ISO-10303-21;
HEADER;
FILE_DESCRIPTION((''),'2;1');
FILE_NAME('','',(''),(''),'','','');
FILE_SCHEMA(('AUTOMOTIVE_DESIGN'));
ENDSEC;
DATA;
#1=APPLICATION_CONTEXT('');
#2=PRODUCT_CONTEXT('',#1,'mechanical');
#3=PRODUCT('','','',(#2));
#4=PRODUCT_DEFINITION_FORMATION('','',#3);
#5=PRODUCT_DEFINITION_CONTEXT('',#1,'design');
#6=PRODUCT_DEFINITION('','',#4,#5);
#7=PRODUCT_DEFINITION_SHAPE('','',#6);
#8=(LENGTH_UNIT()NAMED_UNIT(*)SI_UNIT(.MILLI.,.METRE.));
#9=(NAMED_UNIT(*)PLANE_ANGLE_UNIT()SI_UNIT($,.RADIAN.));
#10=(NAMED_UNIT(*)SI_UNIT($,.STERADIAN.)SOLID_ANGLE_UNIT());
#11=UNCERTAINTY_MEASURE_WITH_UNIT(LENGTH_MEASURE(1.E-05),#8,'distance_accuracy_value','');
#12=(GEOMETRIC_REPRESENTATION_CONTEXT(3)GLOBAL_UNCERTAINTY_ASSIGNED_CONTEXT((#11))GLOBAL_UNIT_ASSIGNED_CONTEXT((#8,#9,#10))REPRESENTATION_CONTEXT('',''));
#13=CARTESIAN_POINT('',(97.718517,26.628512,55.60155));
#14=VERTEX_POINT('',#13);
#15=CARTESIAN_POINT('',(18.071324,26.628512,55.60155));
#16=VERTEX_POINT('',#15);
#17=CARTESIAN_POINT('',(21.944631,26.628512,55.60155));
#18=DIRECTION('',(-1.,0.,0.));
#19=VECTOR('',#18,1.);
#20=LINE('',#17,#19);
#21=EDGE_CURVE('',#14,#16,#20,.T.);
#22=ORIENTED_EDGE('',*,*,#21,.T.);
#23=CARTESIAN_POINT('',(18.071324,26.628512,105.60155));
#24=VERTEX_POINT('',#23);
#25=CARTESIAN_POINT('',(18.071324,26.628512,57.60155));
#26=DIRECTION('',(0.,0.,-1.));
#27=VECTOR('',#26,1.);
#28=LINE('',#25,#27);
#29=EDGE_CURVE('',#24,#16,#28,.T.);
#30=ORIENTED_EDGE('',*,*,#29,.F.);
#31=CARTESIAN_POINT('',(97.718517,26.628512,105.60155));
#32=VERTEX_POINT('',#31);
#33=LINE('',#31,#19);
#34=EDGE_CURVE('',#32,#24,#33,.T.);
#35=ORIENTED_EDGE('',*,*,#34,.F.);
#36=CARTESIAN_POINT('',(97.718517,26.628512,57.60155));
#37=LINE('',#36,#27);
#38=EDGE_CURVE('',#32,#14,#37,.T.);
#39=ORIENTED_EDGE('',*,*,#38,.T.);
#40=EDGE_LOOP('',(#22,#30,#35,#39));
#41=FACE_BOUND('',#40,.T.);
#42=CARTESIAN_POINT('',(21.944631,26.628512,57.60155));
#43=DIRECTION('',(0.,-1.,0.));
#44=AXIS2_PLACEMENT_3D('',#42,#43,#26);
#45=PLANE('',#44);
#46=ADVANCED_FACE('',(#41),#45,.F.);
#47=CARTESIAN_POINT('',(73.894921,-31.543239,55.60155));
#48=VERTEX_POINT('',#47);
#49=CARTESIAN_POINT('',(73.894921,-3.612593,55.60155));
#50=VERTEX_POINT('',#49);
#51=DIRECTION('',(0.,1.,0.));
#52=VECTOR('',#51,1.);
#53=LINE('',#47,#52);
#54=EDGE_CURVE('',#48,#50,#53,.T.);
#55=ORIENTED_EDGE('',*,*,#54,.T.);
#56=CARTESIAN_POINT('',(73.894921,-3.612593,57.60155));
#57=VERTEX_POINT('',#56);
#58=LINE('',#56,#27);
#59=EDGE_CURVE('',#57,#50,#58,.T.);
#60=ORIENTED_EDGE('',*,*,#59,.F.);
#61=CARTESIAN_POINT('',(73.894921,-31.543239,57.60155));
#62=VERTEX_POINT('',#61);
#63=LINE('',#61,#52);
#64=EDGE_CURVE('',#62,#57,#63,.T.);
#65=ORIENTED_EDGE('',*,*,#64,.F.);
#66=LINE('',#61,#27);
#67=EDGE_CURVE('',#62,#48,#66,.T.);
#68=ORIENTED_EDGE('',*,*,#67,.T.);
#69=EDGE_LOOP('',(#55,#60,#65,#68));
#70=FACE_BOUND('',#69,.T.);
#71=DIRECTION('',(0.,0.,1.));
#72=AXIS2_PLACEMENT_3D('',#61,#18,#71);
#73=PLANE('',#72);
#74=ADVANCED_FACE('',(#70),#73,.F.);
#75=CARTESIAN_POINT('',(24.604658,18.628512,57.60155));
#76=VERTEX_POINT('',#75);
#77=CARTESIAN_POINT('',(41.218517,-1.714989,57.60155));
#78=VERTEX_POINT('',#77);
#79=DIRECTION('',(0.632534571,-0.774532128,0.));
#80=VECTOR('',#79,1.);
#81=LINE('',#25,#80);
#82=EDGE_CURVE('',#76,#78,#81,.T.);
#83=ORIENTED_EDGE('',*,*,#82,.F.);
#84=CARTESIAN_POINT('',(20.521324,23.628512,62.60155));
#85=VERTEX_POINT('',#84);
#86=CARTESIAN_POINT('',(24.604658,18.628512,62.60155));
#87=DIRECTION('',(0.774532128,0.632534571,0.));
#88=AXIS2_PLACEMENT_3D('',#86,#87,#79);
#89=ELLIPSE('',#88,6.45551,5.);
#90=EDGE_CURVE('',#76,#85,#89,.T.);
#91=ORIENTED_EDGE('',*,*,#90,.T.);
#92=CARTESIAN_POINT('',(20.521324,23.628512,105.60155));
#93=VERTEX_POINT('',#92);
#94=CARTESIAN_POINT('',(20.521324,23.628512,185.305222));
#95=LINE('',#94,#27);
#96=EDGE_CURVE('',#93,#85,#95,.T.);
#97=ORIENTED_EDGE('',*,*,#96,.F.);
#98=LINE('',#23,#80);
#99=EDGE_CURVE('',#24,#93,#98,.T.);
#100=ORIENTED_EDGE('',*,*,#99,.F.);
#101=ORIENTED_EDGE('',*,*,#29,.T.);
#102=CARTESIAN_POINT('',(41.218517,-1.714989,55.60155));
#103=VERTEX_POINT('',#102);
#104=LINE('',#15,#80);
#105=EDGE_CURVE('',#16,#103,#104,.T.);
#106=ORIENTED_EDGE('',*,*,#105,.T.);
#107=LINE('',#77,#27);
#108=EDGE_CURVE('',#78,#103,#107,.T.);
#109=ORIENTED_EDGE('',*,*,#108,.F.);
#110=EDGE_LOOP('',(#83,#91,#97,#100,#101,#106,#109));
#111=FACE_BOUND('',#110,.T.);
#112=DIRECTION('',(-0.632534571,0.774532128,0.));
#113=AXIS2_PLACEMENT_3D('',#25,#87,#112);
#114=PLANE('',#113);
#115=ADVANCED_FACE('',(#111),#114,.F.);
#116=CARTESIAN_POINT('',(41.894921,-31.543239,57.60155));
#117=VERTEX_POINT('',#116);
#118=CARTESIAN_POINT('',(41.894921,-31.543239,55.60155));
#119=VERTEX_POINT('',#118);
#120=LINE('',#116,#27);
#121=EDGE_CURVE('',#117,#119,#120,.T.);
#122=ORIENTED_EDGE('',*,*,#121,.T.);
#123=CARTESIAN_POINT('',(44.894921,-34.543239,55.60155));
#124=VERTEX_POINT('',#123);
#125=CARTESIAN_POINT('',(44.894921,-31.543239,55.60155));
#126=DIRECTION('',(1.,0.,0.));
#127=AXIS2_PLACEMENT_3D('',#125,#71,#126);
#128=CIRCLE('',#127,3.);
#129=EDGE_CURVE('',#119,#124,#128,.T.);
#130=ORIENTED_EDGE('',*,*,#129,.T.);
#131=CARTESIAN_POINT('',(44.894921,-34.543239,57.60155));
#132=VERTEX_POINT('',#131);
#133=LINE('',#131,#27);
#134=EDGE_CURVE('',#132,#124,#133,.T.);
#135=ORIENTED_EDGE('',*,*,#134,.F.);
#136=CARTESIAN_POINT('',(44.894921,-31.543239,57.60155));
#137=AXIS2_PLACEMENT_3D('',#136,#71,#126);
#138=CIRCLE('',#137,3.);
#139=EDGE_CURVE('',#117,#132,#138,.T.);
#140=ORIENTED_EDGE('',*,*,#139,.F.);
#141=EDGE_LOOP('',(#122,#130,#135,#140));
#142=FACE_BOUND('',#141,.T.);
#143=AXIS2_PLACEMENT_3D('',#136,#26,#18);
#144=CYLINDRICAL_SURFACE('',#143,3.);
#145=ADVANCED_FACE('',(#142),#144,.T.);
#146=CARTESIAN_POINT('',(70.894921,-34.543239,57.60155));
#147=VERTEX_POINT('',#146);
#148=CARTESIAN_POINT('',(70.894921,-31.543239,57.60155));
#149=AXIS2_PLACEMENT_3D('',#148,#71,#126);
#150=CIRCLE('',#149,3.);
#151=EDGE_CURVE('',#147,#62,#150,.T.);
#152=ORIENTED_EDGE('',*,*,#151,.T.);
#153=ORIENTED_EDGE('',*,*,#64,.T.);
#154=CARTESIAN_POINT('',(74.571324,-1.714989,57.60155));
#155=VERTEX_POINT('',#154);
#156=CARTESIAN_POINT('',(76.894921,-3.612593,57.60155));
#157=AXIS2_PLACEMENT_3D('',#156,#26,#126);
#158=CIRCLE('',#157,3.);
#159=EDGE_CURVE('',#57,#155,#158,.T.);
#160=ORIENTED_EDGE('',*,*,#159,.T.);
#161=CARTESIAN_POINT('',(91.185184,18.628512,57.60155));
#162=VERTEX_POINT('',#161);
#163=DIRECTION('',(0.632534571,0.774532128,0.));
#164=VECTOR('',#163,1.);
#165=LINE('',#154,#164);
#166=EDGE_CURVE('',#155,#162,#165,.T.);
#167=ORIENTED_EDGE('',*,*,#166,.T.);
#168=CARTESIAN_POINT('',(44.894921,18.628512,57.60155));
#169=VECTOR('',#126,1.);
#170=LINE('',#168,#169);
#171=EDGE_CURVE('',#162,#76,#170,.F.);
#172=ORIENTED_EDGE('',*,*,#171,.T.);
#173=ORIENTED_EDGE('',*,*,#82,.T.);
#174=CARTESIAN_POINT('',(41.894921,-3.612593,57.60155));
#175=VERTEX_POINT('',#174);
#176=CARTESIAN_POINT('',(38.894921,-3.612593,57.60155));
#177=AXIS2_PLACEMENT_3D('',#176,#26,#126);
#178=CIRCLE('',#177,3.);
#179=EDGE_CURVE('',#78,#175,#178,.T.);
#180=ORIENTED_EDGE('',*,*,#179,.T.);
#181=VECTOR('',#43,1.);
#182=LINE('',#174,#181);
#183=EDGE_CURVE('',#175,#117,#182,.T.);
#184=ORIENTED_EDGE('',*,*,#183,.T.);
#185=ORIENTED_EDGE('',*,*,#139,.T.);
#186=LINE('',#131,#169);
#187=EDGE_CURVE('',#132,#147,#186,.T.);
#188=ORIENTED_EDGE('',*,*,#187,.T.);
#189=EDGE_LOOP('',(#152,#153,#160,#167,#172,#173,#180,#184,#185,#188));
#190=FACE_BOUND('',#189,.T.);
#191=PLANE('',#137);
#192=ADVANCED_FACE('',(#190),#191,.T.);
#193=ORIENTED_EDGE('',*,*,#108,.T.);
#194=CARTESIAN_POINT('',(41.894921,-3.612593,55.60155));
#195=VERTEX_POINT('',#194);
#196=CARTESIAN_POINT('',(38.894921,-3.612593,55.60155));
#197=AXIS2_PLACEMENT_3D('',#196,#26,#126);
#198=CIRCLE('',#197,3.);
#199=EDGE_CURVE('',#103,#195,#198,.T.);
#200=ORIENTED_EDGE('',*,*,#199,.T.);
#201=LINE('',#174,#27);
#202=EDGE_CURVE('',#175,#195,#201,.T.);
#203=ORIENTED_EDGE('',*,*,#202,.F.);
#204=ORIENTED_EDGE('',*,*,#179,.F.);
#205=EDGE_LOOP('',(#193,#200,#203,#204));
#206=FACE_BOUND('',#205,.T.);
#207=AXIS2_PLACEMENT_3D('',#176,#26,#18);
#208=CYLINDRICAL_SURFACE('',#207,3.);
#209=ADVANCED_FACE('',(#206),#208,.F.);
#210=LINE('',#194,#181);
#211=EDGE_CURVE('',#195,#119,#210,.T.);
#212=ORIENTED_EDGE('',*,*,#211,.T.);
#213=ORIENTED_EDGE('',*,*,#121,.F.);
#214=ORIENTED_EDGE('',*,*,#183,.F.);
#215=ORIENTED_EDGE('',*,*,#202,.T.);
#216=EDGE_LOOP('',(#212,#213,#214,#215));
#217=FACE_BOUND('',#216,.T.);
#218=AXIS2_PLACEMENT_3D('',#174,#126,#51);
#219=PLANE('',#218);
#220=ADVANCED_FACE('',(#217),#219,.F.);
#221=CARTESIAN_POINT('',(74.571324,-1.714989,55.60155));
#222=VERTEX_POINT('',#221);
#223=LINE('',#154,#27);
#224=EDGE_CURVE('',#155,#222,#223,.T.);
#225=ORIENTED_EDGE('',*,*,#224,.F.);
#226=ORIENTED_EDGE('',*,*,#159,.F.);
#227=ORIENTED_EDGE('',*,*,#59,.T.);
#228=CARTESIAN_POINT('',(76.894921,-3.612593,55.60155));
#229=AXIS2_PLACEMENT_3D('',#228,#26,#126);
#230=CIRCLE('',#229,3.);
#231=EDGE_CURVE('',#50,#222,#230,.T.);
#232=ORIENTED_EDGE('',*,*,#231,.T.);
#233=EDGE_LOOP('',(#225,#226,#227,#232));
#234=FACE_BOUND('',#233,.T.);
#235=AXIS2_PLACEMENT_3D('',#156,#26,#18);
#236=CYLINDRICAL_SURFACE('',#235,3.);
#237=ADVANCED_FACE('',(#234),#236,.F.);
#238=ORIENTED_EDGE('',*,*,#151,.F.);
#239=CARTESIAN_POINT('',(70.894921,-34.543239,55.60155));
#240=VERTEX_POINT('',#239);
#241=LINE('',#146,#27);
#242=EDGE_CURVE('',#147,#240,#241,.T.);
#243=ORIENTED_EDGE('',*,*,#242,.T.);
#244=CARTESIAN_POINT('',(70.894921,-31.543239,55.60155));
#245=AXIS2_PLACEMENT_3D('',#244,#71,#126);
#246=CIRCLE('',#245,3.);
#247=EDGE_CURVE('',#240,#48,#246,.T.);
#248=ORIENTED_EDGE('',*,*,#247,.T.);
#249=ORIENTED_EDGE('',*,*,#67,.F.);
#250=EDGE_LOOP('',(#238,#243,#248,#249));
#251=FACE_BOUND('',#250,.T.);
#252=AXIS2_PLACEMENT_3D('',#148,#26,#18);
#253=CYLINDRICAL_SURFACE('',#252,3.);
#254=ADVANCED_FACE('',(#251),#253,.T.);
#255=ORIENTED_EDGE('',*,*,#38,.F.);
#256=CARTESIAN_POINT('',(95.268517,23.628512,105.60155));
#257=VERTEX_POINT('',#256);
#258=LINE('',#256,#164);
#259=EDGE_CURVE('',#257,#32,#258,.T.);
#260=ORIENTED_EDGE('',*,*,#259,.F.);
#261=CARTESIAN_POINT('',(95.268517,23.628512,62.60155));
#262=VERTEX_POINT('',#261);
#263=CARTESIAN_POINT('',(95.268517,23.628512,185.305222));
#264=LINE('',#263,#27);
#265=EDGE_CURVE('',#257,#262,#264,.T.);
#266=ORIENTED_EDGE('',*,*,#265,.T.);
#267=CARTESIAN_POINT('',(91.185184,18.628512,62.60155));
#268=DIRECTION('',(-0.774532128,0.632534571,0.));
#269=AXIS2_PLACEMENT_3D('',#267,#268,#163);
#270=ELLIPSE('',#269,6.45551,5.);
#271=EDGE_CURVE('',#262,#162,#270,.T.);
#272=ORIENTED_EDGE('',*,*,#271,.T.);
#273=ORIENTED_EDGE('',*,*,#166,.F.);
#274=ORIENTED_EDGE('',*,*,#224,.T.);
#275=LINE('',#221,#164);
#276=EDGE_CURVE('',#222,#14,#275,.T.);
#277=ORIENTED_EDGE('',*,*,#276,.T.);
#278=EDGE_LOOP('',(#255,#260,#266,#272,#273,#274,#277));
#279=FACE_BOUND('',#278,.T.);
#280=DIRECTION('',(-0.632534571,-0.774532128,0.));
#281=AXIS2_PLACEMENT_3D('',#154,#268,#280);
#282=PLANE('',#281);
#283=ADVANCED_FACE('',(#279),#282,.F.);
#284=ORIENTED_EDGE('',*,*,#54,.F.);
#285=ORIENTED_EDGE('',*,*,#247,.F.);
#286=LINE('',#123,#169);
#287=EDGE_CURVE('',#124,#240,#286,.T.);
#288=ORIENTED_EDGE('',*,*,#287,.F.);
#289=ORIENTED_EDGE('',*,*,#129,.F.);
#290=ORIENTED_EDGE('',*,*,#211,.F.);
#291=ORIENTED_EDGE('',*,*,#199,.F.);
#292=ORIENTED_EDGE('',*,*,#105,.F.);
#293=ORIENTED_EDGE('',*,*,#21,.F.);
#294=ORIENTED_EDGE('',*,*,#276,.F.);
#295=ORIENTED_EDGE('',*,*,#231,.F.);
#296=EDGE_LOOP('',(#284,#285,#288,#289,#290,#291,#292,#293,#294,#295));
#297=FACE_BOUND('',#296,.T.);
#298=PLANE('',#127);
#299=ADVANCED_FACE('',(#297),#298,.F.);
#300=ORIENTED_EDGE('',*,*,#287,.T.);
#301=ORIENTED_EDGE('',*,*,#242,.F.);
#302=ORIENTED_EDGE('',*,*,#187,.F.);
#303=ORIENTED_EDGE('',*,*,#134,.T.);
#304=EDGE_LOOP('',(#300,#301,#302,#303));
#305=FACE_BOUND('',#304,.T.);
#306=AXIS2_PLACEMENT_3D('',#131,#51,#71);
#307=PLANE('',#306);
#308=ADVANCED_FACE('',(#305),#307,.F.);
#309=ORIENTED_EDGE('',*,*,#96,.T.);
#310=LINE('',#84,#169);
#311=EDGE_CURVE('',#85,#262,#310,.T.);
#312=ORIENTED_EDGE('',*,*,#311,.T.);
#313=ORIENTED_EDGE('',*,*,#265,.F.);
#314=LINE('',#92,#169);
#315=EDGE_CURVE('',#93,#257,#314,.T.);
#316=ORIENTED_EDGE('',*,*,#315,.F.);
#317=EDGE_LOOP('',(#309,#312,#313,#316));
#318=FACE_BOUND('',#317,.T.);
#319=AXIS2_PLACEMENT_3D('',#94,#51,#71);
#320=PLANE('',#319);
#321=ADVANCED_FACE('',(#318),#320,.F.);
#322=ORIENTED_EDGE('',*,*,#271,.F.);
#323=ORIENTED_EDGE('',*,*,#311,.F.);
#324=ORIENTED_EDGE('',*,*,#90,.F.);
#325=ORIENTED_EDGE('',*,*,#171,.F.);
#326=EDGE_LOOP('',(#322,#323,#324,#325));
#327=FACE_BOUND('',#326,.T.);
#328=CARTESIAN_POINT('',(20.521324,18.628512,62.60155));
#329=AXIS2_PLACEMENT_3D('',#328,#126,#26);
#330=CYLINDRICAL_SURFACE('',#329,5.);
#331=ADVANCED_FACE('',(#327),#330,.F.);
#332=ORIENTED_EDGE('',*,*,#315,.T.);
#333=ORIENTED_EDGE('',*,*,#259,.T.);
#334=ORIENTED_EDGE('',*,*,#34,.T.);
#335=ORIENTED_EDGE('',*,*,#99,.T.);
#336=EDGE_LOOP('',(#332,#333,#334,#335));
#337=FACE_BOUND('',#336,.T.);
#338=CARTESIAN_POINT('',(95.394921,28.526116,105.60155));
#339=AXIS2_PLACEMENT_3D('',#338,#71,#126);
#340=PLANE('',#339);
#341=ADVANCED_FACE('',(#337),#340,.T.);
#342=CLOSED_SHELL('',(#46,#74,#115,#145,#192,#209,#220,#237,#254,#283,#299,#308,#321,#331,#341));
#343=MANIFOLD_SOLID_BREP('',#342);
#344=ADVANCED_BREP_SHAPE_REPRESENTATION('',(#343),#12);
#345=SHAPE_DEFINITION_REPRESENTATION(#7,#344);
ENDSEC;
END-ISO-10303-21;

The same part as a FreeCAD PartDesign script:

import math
import FreeCAD as App
import Part
import Sketcher

V = App.Vector


def edges_at(feature, points):
    """Names of the edges that pass closest to the given points."""
    edges = feature.Shape.Edges
    near = lambda p: min(range(len(edges)), key=lambda i: edges[i].distToShape(Part.Vertex(*p))[0])
    return sorted({f"Edge{near(p) + 1}" for p in points})


def add_polygon(sketch, points):
    """Adds a closed chain of lines whose ends are joined by coincident constraints."""
    first, n = sketch.GeometryCount, len(points)
    for a, b in zip(points, points[1:] + points[:1]):
        sketch.addGeometry(Part.LineSegment(App.Vector(*a, 0), App.Vector(*b, 0)), False)
    for i in range(n):
        sketch.addConstraint(Sketcher.Constraint("Coincident", first + i, 2, first + (i + 1) % n, 1))

doc = App.newDocument("Part")
params = doc.addObject("Spreadsheet::Sheet", "Params")
for row, (alias, value) in enumerate([
    ("sketch1_radius", "3 mm"),
    ("sketch1_width", "26 mm"),
    ("pad1_length", "2 mm"),
    ("pad2_length", "48 mm"),
    ("fillet_radius", "5 mm"),
], start=1):
    params.set(f"A{row}", alias)
    params.set(f"B{row}", "=" + value)
    params.setAlias(f"B{row}", alias)

body = doc.addObject("PartDesign::Body", "Body")

sketch1 = body.newObject("Sketcher::SketchObject", "Sketch")
sketch1.AttachmentSupport = (doc.getObject("XY_Plane"), [""])
sketch1.MapMode = "FlatFace"
sketch1.AttachmentOffset = App.Placement(V(0, 0, 55.60155), App.Rotation())
sketch1.addGeometry([
    Part.LineSegment(V(18.1, 26.6, 0), V(41.2, -1.7, 0)),
    Part.ArcOfCircle(Part.Circle(V(38.9, -3.6, 0), V(0, 0, 1), 3), math.radians(0), math.radians(39)),
    Part.LineSegment(V(41.9, -3.6, 0), V(41.9, -31.5, 0)),
    Part.ArcOfCircle(Part.Circle(V(44.9, -31.5, 0), V(0, 0, 1), 3), math.radians(180), math.radians(270)),
    Part.LineSegment(V(44.9, -34.5, 0), V(70.9, -34.5, 0)),
    Part.ArcOfCircle(Part.Circle(V(70.9, -31.5, 0), V(0, 0, 1), 3), math.radians(-90), math.radians(0)),
    Part.LineSegment(V(73.9, -31.5, 0), V(73.9, -3.6, 0)),
    Part.ArcOfCircle(Part.Circle(V(76.9, -3.6, 0), V(0, 0, 1), 3), math.radians(141), math.radians(180)),
    Part.LineSegment(V(74.6, -1.7, 0), V(97.7, 26.6, 0)),
    Part.LineSegment(V(97.7, 26.6, 0), V(18.1, 26.6, 0)),
], False)
sketch1.addConstraint([
    Sketcher.Constraint("Tangent", 0, 2, 1, 2),
    Sketcher.Constraint("Tangent", 1, 1, 2, 1),
    Sketcher.Constraint("Tangent", 2, 2, 3, 1),
    Sketcher.Constraint("Tangent", 3, 2, 4, 1),
    Sketcher.Constraint("Tangent", 4, 2, 5, 1),
    Sketcher.Constraint("Tangent", 5, 2, 6, 1),
    Sketcher.Constraint("Tangent", 6, 2, 7, 2),
    Sketcher.Constraint("Tangent", 7, 1, 8, 1),
    Sketcher.Constraint("Coincident", 8, 2, 9, 1),
    Sketcher.Constraint("Coincident", 9, 2, 0, 1),
    Sketcher.Constraint("Vertical", 2),
    Sketcher.Constraint("Horizontal", 4),
    Sketcher.Constraint("Vertical", 6),
    Sketcher.Constraint("Horizontal", 9),
    Sketcher.Constraint("Equal", 1, 3),
    Sketcher.Constraint("Equal", 3, 5),
    Sketcher.Constraint("Equal", 5, 7),
    Sketcher.Constraint("Horizontal", 1, 3, 7, 3),
    Sketcher.Constraint("Horizontal", 0, 2, 7, 1),
    Sketcher.Constraint("Radius", 1, 3.0),
    Sketcher.Constraint("DistanceX", 4, 1, 4, 2, 26.0),
    Sketcher.Constraint("DistanceX", 0, 2, 8, 2, 56.5),
    Sketcher.Constraint("DistanceY", 7, 1, 8, 2, 28.343501),
    Sketcher.Constraint("DistanceY", 2, 2, 2, 1, 27.930646),
    Sketcher.Constraint("DistanceX", -1, 1, 1, 3, 38.894921),
    Sketcher.Constraint("DistanceY", 3, 3, -1, 1, 31.543239),
])
sketch1.setExpression("Constraints[19]", "Params.sketch1_radius")
sketch1.setExpression("Constraints[20]", "Params.sketch1_width")
pad1 = body.newObject("PartDesign::Pad", "Pad")
pad1.Profile = sketch1
pad1.setExpression("Length", "Params.pad1_length")

sketch2 = body.newObject("Sketcher::SketchObject", "Sketch001")
sketch2.AttachmentSupport = (doc.getObject("XY_Plane"), [""])
sketch2.MapMode = "FlatFace"
sketch2.AttachmentOffset = App.Placement(V(0, 0, 57.60155), App.Rotation())
add_polygon(sketch2, [(97.7, 26.6), (18.1, 26.6), (20.5, 23.6), (95.3, 23.6)])
sketch2.addConstraint([
    Sketcher.Constraint("Horizontal", 0),
    Sketcher.Constraint("Horizontal", 2),
    Sketcher.Constraint("Equal", 1, 3),
    Sketcher.Constraint("DistanceY", 1, 2, 0, 2, 3.0),
    Sketcher.Constraint("DistanceX", 0, 2, 1, 2, 2.45),
    Sketcher.Constraint("DistanceX", 0, 2, 0, 1, 79.647193),
    Sketcher.Constraint("DistanceX", -1, 1, 0, 2, 18.071324),
    Sketcher.Constraint("DistanceY", -1, 1, 0, 2, 26.628512),
])
pad2 = body.newObject("PartDesign::Pad", "Pad001")
pad2.Profile = sketch2
pad2.setExpression("Length", "Params.pad2_length")
doc.recompute()

fillet = body.newObject("PartDesign::Fillet", "Fillet")
fillet.Base = (pad2, edges_at(pad2, [(57.895, 23.629, 57.602)]))
fillet.setExpression("Radius", "Params.fillet_radius")

doc.recompute()
